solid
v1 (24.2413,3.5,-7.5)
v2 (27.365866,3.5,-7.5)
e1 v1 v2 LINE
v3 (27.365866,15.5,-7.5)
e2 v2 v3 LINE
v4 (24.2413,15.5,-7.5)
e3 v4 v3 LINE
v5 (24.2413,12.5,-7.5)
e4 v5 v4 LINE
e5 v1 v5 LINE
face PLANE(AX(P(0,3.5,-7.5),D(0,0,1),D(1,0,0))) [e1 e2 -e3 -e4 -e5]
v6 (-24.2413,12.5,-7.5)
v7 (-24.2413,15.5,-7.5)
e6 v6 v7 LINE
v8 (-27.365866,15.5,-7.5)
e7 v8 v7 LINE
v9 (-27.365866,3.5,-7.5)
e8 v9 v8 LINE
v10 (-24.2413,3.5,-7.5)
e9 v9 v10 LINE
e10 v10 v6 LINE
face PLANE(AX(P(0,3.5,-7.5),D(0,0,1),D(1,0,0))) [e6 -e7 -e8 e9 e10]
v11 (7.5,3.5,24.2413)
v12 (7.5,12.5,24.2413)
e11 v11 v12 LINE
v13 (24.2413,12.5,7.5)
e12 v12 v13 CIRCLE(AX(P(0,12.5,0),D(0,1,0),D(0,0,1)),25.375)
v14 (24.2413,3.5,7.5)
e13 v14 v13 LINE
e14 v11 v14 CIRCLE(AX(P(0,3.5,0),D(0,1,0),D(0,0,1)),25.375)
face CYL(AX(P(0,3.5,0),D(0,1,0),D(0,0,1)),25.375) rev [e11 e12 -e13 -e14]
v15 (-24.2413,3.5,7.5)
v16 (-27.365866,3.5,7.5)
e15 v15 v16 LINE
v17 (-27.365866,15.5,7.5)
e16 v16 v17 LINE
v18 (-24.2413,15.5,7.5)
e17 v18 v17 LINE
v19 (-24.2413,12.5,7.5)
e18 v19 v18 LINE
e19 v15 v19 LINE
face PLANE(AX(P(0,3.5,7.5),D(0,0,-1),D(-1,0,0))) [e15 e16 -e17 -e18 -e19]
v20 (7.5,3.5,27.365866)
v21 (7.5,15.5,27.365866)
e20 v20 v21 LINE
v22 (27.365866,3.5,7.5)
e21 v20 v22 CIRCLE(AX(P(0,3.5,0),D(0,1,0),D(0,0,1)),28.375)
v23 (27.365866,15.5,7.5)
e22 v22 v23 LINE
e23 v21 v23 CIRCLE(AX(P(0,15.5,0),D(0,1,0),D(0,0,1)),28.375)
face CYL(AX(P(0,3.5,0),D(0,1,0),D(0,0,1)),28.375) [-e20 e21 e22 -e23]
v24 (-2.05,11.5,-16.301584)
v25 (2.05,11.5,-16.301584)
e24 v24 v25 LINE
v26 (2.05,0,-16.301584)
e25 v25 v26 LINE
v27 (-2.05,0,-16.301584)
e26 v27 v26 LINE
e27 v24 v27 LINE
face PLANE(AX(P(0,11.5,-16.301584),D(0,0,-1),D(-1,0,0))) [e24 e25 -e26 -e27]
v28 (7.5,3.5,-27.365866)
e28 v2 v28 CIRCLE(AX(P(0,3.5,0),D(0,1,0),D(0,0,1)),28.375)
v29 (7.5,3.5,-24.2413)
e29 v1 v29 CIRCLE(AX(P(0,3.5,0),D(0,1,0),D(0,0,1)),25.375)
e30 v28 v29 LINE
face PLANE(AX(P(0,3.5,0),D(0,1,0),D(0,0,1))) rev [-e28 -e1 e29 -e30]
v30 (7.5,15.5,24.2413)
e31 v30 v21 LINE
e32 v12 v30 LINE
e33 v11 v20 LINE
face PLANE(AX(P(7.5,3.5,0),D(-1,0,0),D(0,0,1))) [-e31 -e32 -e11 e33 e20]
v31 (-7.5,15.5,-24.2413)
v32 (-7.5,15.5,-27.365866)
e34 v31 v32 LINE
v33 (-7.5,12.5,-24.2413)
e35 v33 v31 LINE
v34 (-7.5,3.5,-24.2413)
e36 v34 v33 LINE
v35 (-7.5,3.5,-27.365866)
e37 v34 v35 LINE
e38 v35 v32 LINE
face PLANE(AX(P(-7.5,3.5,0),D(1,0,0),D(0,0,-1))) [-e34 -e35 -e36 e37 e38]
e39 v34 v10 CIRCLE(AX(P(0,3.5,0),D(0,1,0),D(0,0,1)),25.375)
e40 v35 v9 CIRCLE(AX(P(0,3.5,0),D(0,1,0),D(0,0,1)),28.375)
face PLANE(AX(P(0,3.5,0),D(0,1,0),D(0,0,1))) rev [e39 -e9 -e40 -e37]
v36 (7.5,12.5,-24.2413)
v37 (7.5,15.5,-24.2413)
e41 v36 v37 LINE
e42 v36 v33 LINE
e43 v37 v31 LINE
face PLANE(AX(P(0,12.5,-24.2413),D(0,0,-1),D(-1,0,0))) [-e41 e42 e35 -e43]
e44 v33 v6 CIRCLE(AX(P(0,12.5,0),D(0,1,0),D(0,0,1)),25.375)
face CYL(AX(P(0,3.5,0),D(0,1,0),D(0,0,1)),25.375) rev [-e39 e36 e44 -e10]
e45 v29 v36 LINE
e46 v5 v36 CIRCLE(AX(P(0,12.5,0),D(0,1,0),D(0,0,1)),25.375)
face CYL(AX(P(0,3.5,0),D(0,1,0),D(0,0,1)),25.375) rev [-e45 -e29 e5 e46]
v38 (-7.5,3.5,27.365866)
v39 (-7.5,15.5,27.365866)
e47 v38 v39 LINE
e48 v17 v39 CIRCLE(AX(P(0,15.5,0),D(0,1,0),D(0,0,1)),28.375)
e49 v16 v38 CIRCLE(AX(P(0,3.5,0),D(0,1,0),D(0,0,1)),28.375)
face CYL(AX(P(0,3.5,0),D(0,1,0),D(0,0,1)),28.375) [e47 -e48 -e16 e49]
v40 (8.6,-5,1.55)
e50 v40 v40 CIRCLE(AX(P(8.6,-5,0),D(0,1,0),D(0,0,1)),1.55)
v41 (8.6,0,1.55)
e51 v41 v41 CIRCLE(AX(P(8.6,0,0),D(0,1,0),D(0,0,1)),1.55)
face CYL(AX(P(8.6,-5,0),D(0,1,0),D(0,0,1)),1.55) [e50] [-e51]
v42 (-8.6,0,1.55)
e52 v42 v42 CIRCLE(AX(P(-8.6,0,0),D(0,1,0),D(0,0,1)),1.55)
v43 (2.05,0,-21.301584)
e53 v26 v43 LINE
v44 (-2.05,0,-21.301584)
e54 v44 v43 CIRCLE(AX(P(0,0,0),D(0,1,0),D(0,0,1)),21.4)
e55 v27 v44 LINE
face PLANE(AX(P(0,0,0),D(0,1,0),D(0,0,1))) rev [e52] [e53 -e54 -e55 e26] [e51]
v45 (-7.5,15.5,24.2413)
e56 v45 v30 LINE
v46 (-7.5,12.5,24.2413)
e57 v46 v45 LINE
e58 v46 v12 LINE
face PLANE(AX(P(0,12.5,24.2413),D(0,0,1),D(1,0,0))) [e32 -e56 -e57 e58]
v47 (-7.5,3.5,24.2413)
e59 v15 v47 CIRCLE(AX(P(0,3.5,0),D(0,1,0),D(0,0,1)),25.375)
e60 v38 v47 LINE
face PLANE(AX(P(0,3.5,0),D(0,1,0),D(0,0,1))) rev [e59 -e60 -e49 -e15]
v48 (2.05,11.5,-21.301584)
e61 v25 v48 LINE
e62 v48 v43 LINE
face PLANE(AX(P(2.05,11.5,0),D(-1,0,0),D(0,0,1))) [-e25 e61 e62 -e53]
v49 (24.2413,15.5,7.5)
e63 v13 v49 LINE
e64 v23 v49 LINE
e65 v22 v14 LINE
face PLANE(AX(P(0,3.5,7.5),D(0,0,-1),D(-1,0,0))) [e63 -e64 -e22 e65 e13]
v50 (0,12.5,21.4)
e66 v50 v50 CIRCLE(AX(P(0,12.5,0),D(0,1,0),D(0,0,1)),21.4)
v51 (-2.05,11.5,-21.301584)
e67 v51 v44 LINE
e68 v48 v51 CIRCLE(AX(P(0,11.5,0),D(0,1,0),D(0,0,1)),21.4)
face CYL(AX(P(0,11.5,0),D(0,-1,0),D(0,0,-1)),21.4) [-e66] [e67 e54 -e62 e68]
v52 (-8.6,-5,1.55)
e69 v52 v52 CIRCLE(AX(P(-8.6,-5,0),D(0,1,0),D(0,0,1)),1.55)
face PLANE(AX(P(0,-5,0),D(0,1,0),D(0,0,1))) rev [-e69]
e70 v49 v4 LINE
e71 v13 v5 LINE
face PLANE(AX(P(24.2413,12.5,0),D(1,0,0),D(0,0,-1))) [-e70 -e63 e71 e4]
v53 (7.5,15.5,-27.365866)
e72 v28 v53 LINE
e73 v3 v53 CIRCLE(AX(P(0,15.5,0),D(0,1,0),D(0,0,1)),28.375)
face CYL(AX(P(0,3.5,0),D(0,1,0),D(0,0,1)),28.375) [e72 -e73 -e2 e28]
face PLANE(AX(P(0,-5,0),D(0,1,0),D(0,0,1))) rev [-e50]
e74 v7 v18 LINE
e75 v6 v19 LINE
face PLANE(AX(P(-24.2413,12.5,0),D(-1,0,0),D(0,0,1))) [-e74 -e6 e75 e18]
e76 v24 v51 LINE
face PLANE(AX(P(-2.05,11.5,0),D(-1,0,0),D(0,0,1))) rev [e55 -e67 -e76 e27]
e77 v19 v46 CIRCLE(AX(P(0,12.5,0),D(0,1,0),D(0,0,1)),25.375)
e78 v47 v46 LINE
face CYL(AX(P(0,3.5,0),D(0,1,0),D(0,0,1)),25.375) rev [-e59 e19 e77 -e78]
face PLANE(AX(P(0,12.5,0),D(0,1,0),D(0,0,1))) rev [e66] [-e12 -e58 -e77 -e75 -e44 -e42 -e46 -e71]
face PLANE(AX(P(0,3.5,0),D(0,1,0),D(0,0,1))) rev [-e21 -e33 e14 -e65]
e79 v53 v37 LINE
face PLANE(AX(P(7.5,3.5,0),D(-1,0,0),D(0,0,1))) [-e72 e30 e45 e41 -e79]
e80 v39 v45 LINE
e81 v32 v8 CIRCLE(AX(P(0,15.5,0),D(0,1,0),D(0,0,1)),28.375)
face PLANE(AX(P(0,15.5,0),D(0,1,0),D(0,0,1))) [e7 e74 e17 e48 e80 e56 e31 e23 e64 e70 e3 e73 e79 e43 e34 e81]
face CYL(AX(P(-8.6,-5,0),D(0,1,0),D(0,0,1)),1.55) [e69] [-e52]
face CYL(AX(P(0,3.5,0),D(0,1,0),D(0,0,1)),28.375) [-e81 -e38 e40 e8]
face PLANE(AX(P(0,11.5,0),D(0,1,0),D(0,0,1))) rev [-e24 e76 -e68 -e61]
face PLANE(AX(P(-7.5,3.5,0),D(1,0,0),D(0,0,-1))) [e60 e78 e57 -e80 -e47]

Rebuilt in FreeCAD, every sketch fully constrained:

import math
import FreeCAD as App
import Part
import Sketcher
Q = App.Units.Quantity

doc = App.newDocument("Part")
body = doc.addObject("PartDesign::Body", "Body")

sketch1 = doc.addObject("Sketcher::SketchObject", "Sketch")
body.addObject(sketch1)
sketch1.AttachmentSupport = (doc.XZ_Plane, [""])
sketch1.MapMode = "FlatFace"
sketch1.addGeometry([
    Part.LineSegment(App.Vector(2.05, -16.301584, 0), App.Vector(-2.05, -16.301584, 0)),
    Part.LineSegment(App.Vector(-2.05, -16.301584, 0), App.Vector(-2.05, -21.301584, 0)),
    Part.ArcOfCircle(Part.Circle(App.Vector(0, 0, 0), App.Vector(0, 0, 1), 21.4), math.radians(-84.502956), math.radians(264.502956)),
    Part.LineSegment(App.Vector(2.05, -21.301584, 0), App.Vector(2.05, -16.301584, 0)),
    Part.Circle(App.Vector(-8.6, 0, 0), App.Vector(0, 0, 1), 1.55),
    Part.Circle(App.Vector(8.6, 0, 0), App.Vector(0, 0, 1), 1.55),
], False)
sketch1.addConstraint([
    Sketcher.Constraint("Coincident", 0, 2, 1, 1),
    Sketcher.Constraint("Coincident", 1, 2, 2, 2),
    Sketcher.Constraint("Coincident", 2, 1, 3, 1),
    Sketcher.Constraint("Coincident", 3, 2, 0, 1),
    Sketcher.Constraint("Horizontal", 0),
    Sketcher.Constraint("Vertical", 1),
    Sketcher.Constraint("Vertical", 3),
    Sketcher.Constraint("Coincident", 2, 3, -1, 1),
    Sketcher.Constraint("Equal", 4, 5),
    Sketcher.Constraint("Symmetric", 4, 3, 5, 3, -1, 1),
    Sketcher.Constraint("PointOnObject", 4, 3, -1),
    Sketcher.Constraint("Horizontal", 1, 2, 2, 1),
    Sketcher.Constraint("Diameter", 4, Q("3.1 mm")),
    Sketcher.Constraint("Radius", 2, Q("21.4 mm")),
    Sketcher.Constraint("DistanceY", 1, 2, 1, 1, Q("5 mm")),
    Sketcher.Constraint("DistanceX", 0, 2, 0, 1, Q("4.1 mm")),
    Sketcher.Constraint("DistanceX", 4, 3, -1, 1, Q("8.6 mm")),
])
pad1 = doc.addObject("PartDesign::Pad", "Pad")
body.addObject(pad1)
pad1.Profile = sketch1
pad1.Length = 11.5
pad1.Reversed = True

sketch2 = doc.addObject("Sketcher::SketchObject", "Sketch001")
body.addObject(sketch2)
sketch2.AttachmentSupport = (doc.XZ_Plane, [""])
sketch2.MapMode = "FlatFace"
sketch2.addGeometry([
    Part.Circle(App.Vector(-8.6, 0, 0), App.Vector(0, 0, 1), 1.55),
    Part.Circle(App.Vector(8.6, 0, 0), App.Vector(0, 0, 1), 1.55),
], False)
sketch2.addConstraint([
    Sketcher.Constraint("Equal", 0, 1),
    Sketcher.Constraint("Symmetric", 0, 3, 1, 3, -1, 1),
    Sketcher.Constraint("PointOnObject", 0, 3, -1),
    Sketcher.Constraint("Diameter", 0, Q("3.1 mm")),
    Sketcher.Constraint("DistanceX", 0, 3, -1, 1, Q("8.6 mm")),
])
pad2 = doc.addObject("PartDesign::Pad", "Pad001")
body.addObject(pad2)
pad2.Profile = sketch2
pad2.Type = "TwoLengths"
pad2.Length = 11.5
pad2.Length2 = 5
pad2.Reversed = True

sketch3 = doc.addObject("Sketcher::SketchObject", "Sketch002")
body.addObject(sketch3)
sketch3.AttachmentSupport = (doc.XZ_Plane, [""])
sketch3.MapMode = "FlatFace"
sketch3.AttachmentOffset = App.Placement(App.Vector(0, 0, -11.5), App.Rotation())
sketch3.addGeometry(Part.Circle(App.Vector(0, 0, 0), App.Vector(0, 0, 1), 21.4), False)
sketch3.addConstraint([
    Sketcher.Constraint("Coincident", 0, 3, -1, 1),
    Sketcher.Constraint("Diameter", 0, Q("42.8 mm")),
])
pad3 = doc.addObject("PartDesign::Pad", "Pad002")
body.addObject(pad3)
pad3.Profile = sketch3
pad3.Length = 4
pad3.Reversed = True

sketch4 = doc.addObject("Sketcher::SketchObject", "Sketch003")
body.addObject(sketch4)
sketch4.AttachmentSupport = (doc.XZ_Plane, [""])
sketch4.MapMode = "FlatFace"
sketch4.AttachmentOffset = App.Placement(App.Vector(0, 0, -15.5), App.Rotation())
sketch4.addGeometry([
    Part.LineSegment(App.Vector(7.5, -24.2413, 0), App.Vector(-7.5, -24.2413, 0)),
    Part.ArcOfCircle(Part.Circle(App.Vector(0, 0, 0), App.Vector(0, 0, 1), 25.375), math.radians(-162.80849), math.radians(-107.19151)),
    Part.LineSegment(App.Vector(-24.2413, -7.5, 0), App.Vector(-24.2413, 7.5, 0)),
    Part.ArcOfCircle(Part.Circle(App.Vector(0, 0, 0), App.Vector(0, 0, 1), 25.375), math.radians(107.19151), math.radians(162.80849)),
    Part.LineSegment(App.Vector(-7.5, 24.2413, 0), App.Vector(7.5, 24.2413, 0)),
    Part.ArcOfCircle(Part.Circle(App.Vector(0, 0, 0), App.Vector(0, 0, 1), 25.375), math.radians(17.19151), math.radians(72.80849)),
    Part.LineSegment(App.Vector(24.2413, 7.5, 0), App.Vector(24.2413, -7.5, 0)),
    Part.ArcOfCircle(Part.Circle(App.Vector(0, 0, 0), App.Vector(0, 0, 1), 25.375), math.radians(-72.80849), math.radians(-17.19151)),
    Part.Circle(App.Vector(0, 0, 0), App.Vector(0, 0, 1), 21.4),
], False)
sketch4.addConstraint([
    Sketcher.Constraint("Coincident", 0, 2, 1, 2),
    Sketcher.Constraint("Coincident", 1, 1, 2, 1),
    Sketcher.Constraint("Coincident", 2, 2, 3, 2),
    Sketcher.Constraint("Coincident", 3, 1, 4, 1),
    Sketcher.Constraint("Coincident", 4, 2, 5, 2),
    Sketcher.Constraint("Coincident", 5, 1, 6, 1),
    Sketcher.Constraint("Coincident", 6, 2, 7, 2),
    Sketcher.Constraint("Coincident", 7, 1, 0, 1),
    Sketcher.Constraint("Horizontal", 0),
    Sketcher.Constraint("Vertical", 2),
    Sketcher.Constraint("Horizontal", 4),
    Sketcher.Constraint("Vertical", 6),
    Sketcher.Constraint("Coincident", 1, 3, -1, 1),
    Sketcher.Constraint("Coincident", 3, 3, -1, 1),
    Sketcher.Constraint("Coincident", 5, 3, -1, 1),
    Sketcher.Constraint("Coincident", 7, 3, -1, 1),
    Sketcher.Constraint("Coincident", 8, 3, -1, 1),
    Sketcher.Constraint("Equal", 1, 3),
    Sketcher.Constraint("Equal", 3, 5),
    Sketcher.Constraint("Equal", 5, 7),
    Sketcher.Constraint("Horizontal", 2, 2, 5, 1),
    Sketcher.Constraint("Vertical", 0, 2, 3, 1),
    Sketcher.Constraint("Equal", 4, 2),
    Sketcher.Constraint("Diameter", 8, Q("42.8 mm")),
    Sketcher.Constraint("DistanceX", 0, 2, 0, 1, Q("15 mm")),
    Sketcher.Constraint("Radius", 1, Q("25.375 mm")),
])
pad4 = doc.addObject("PartDesign::Pad", "Pad003")
body.addObject(pad4)
pad4.Profile = sketch4
pad4.Length = 3

sketch5 = doc.addObject("Sketcher::SketchObject", "Sketch004")
body.addObject(sketch5)
sketch5.AttachmentSupport = (doc.XZ_Plane, [""])
sketch5.MapMode = "FlatFace"
sketch5.AttachmentOffset = App.Placement(App.Vector(0, 0, -15.5), App.Rotation())
sketch5.addGeometry([
    Part.LineSegment(App.Vector(-7.5, -24.2413, 0), App.Vector(-7.5, -27.365866, 0)),
    Part.ArcOfCircle(Part.Circle(App.Vector(0, 0, 0), App.Vector(0, 0, 1), 28.375), math.radians(-164.673616), math.radians(-105.326384)),
    Part.LineSegment(App.Vector(-27.365866, -7.5, 0), App.Vector(-24.2413, -7.5, 0)),
    Part.ArcOfCircle(Part.Circle(App.Vector(0, 0, 0), App.Vector(0, 0, 1), 25.375), math.radians(-162.80849), math.radians(-107.19151)),
    Part.ArcOfCircle(Part.Circle(App.Vector(0, 0, 0), App.Vector(0, 0, 1), 28.375), math.radians(-74.673616), math.radians(-15.326384)),
    Part.LineSegment(App.Vector(7.5, -27.365866, 0), App.Vector(7.5, -24.2413, 0)),
    Part.ArcOfCircle(Part.Circle(App.Vector(0, 0, 0), App.Vector(0, 0, 1), 25.375), math.radians(-72.80849), math.radians(-17.19151)),
    Part.LineSegment(App.Vector(24.2413, -7.5, 0), App.Vector(27.365866, -7.5, 0)),
    Part.LineSegment(App.Vector(-24.2413, 7.5, 0), App.Vector(-27.365866, 7.5, 0)),
    Part.ArcOfCircle(Part.Circle(App.Vector(0, 0, 0), App.Vector(0, 0, 1), 28.375), math.radians(105.326384), math.radians(164.673616)),
    Part.LineSegment(App.Vector(-7.5, 27.365866, 0), App.Vector(-7.5, 24.2413, 0)),
    Part.ArcOfCircle(Part.Circle(App.Vector(0, 0, 0), App.Vector(0, 0, 1), 25.375), math.radians(107.19151), math.radians(162.80849)),
    Part.LineSegment(App.Vector(27.365866, 7.5, 0), App.Vector(24.2413, 7.5, 0)),
    Part.ArcOfCircle(Part.Circle(App.Vector(0, 0, 0), App.Vector(0, 0, 1), 25.375), math.radians(17.19151), math.radians(72.80849)),
    Part.LineSegment(App.Vector(7.5, 24.2413, 0), App.Vector(7.5, 27.365866, 0)),
    Part.ArcOfCircle(Part.Circle(App.Vector(0, 0, 0), App.Vector(0, 0, 1), 28.375), math.radians(15.326384), math.radians(74.673616)),
], False)
sketch5.addConstraint([
    Sketcher.Constraint("Coincident", 0, 2, 1, 2),
    Sketcher.Constraint("Coincident", 1, 1, 2, 1),
    Sketcher.Constraint("Coincident", 2, 2, 3, 1),
    Sketcher.Constraint("Coincident", 3, 2, 0, 1),
    Sketcher.Constraint("Coincident", 4, 1, 5, 1),
    Sketcher.Constraint("Coincident", 5, 2, 6, 1),
    Sketcher.Constraint("Coincident", 6, 2, 7, 1),
    Sketcher.Constraint("Coincident", 7, 2, 4, 2),
    Sketcher.Constraint("Coincident", 8, 2, 9, 2),
    Sketcher.Constraint("Coincident", 9, 1, 10, 1),
    Sketcher.Constraint("Coincident", 10, 2, 11, 1),
    Sketcher.Constraint("Coincident", 11, 2, 8, 1),
    Sketcher.Constraint("Coincident", 12, 2, 13, 1),
    Sketcher.Constraint("Coincident", 13, 2, 14, 1),
    Sketcher.Constraint("Coincident", 14, 2, 15, 2),
    Sketcher.Constraint("Coincident", 15, 1, 12, 1),
    Sketcher.Constraint("Vertical", 0),
    Sketcher.Constraint("Horizontal", 2),
    Sketcher.Constraint("Vertical", 5),
    Sketcher.Constraint("Horizontal", 7),
    Sketcher.Constraint("Horizontal", 8),
    Sketcher.Constraint("Vertical", 10),
    Sketcher.Constraint("Horizontal", 12),
    Sketcher.Constraint("Vertical", 14),
    Sketcher.Constraint("Coincident", 1, 3, -1, 1),
    Sketcher.Constraint("Coincident", 3, 3, -1, 1),
    Sketcher.Constraint("Coincident", 4, 3, -1, 1),
    Sketcher.Constraint("Coincident", 6, 3, -1, 1),
    Sketcher.Constraint("Coincident", 9, 3, -1, 1),
    Sketcher.Constraint("Coincident", 11, 3, -1, 1),
    Sketcher.Constraint("Coincident", 13, 3, -1, 1),
    Sketcher.Constraint("Coincident", 15, 3, -1, 1),
    Sketcher.Constraint("Equal", 1, 4),
    Sketcher.Constraint("Equal", 3, 6),
    Sketcher.Constraint("Equal", 4, 9),
    Sketcher.Constraint("Equal", 6, 11),
    Sketcher.Constraint("Equal", 11, 13),
    Sketcher.Constraint("Equal", 9, 15),
    Sketcher.Constraint("Horizontal", 0, 2, 4, 1),
    Sketcher.Constraint("Horizontal", 2, 2, 6, 2),
    Sketcher.Constraint("Horizontal", 11, 2, 12, 2),
    Sketcher.Constraint("Horizontal", 10, 2, 13, 2),
    Sketcher.Constraint("Vertical", 1, 1, 8, 2),
    Sketcher.Constraint("Vertical", 3, 2, 9, 1),
    Sketcher.Constraint("Equal", 12, 0),
    Sketcher.Constraint("Radius", 1, Q("28.375 mm")),
    Sketcher.Constraint("Radius", 3, Q("25.375 mm")),
    Sketcher.Constraint("DistanceX", 0, 2, 4, 1, Q("15 mm")),
])
pad5 = doc.addObject("PartDesign::Pad", "Pad004")
body.addObject(pad5)
pad5.Profile = sketch5
pad5.Length = 12

doc.recompute()
